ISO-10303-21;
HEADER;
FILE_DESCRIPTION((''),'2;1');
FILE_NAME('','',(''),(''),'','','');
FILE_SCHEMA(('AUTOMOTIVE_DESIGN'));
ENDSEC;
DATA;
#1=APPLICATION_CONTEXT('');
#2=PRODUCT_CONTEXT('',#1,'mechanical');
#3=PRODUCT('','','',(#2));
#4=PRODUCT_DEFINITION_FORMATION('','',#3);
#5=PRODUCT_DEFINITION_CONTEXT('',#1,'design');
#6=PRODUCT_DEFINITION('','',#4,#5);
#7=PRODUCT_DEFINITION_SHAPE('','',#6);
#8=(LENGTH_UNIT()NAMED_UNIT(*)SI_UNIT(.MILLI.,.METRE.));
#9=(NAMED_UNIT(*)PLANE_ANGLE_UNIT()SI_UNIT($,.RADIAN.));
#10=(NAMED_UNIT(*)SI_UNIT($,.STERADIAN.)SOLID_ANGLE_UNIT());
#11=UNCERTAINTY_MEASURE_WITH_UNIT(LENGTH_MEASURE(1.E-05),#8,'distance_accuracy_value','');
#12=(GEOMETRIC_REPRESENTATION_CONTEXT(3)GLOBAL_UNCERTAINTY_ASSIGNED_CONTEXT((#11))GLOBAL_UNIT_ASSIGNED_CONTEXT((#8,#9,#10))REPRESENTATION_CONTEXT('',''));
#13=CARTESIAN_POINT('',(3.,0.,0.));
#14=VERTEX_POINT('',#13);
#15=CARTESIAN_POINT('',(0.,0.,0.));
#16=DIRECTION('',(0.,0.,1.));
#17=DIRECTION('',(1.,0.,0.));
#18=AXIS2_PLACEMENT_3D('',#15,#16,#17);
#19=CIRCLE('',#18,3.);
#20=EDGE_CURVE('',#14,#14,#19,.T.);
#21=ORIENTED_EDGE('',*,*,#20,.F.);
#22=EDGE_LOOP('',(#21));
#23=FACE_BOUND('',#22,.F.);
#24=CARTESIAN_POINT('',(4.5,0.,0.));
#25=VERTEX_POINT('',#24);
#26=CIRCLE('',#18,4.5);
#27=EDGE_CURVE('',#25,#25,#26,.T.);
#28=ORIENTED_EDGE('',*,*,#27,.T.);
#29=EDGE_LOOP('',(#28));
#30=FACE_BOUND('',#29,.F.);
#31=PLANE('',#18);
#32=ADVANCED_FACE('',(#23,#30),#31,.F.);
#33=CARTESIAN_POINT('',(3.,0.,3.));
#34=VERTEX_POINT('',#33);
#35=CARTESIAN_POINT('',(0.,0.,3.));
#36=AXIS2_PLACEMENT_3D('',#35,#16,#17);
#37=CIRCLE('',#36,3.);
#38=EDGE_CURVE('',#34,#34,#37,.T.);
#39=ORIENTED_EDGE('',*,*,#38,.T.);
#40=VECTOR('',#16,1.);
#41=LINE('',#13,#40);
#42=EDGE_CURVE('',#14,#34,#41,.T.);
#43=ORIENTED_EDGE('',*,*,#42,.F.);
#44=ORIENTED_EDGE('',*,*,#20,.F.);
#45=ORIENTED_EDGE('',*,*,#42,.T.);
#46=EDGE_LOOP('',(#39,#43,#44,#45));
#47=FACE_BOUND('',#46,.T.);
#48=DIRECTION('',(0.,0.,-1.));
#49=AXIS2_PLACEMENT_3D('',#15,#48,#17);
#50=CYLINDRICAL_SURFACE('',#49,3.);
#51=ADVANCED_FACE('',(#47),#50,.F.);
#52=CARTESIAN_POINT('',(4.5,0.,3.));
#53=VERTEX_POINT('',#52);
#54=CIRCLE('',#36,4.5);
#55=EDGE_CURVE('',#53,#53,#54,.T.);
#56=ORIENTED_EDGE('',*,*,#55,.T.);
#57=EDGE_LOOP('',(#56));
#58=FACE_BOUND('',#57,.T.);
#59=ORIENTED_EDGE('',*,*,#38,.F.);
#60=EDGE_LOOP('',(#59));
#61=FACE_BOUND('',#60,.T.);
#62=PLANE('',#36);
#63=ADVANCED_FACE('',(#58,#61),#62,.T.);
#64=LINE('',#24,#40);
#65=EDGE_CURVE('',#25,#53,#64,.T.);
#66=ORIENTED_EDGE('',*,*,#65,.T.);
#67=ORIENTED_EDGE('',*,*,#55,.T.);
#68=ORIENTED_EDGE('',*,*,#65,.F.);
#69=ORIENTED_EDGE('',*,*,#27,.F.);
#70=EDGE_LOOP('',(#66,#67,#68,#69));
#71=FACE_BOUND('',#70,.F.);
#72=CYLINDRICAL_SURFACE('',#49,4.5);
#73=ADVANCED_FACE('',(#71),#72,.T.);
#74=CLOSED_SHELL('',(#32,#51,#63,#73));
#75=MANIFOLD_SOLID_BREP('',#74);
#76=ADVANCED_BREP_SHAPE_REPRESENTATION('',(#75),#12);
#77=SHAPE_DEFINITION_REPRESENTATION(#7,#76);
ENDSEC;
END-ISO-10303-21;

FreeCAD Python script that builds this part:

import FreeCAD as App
import Part
import Sketcher
from FreeCAD import Vector
Q = App.Units.Quantity

doc = App.newDocument("Part")
body = doc.addObject("PartDesign::Body", "Body")

# Sketch on XY plane
sketch1 = body.newObject("Sketcher::SketchObject", "Sketch")
sketch1.AttachmentSupport = (doc.getObject("XY_Plane"), [""])
sketch1.MapMode = "FlatFace"
sketch1.addGeometry([
    Part.Circle(Vector(0, 0, 0), Vector(0, 0, 1), 4.5),
    Part.Circle(Vector(0, 0, 0), Vector(0, 0, 1), 3),
], False)
sketch1.addConstraint([
    Sketcher.Constraint("Coincident", 0, 3, -1, 1),
    Sketcher.Constraint("Coincident", 1, 3, -1, 1),
    Sketcher.Constraint("Diameter", 0, Q("9 mm")),
    Sketcher.Constraint("Diameter", 1, Q("6 mm")),
])
pad1 = body.newObject("PartDesign::Pad", "Pad")
pad1.Profile = sketch1
pad1.Length = 3

doc.recompute()
